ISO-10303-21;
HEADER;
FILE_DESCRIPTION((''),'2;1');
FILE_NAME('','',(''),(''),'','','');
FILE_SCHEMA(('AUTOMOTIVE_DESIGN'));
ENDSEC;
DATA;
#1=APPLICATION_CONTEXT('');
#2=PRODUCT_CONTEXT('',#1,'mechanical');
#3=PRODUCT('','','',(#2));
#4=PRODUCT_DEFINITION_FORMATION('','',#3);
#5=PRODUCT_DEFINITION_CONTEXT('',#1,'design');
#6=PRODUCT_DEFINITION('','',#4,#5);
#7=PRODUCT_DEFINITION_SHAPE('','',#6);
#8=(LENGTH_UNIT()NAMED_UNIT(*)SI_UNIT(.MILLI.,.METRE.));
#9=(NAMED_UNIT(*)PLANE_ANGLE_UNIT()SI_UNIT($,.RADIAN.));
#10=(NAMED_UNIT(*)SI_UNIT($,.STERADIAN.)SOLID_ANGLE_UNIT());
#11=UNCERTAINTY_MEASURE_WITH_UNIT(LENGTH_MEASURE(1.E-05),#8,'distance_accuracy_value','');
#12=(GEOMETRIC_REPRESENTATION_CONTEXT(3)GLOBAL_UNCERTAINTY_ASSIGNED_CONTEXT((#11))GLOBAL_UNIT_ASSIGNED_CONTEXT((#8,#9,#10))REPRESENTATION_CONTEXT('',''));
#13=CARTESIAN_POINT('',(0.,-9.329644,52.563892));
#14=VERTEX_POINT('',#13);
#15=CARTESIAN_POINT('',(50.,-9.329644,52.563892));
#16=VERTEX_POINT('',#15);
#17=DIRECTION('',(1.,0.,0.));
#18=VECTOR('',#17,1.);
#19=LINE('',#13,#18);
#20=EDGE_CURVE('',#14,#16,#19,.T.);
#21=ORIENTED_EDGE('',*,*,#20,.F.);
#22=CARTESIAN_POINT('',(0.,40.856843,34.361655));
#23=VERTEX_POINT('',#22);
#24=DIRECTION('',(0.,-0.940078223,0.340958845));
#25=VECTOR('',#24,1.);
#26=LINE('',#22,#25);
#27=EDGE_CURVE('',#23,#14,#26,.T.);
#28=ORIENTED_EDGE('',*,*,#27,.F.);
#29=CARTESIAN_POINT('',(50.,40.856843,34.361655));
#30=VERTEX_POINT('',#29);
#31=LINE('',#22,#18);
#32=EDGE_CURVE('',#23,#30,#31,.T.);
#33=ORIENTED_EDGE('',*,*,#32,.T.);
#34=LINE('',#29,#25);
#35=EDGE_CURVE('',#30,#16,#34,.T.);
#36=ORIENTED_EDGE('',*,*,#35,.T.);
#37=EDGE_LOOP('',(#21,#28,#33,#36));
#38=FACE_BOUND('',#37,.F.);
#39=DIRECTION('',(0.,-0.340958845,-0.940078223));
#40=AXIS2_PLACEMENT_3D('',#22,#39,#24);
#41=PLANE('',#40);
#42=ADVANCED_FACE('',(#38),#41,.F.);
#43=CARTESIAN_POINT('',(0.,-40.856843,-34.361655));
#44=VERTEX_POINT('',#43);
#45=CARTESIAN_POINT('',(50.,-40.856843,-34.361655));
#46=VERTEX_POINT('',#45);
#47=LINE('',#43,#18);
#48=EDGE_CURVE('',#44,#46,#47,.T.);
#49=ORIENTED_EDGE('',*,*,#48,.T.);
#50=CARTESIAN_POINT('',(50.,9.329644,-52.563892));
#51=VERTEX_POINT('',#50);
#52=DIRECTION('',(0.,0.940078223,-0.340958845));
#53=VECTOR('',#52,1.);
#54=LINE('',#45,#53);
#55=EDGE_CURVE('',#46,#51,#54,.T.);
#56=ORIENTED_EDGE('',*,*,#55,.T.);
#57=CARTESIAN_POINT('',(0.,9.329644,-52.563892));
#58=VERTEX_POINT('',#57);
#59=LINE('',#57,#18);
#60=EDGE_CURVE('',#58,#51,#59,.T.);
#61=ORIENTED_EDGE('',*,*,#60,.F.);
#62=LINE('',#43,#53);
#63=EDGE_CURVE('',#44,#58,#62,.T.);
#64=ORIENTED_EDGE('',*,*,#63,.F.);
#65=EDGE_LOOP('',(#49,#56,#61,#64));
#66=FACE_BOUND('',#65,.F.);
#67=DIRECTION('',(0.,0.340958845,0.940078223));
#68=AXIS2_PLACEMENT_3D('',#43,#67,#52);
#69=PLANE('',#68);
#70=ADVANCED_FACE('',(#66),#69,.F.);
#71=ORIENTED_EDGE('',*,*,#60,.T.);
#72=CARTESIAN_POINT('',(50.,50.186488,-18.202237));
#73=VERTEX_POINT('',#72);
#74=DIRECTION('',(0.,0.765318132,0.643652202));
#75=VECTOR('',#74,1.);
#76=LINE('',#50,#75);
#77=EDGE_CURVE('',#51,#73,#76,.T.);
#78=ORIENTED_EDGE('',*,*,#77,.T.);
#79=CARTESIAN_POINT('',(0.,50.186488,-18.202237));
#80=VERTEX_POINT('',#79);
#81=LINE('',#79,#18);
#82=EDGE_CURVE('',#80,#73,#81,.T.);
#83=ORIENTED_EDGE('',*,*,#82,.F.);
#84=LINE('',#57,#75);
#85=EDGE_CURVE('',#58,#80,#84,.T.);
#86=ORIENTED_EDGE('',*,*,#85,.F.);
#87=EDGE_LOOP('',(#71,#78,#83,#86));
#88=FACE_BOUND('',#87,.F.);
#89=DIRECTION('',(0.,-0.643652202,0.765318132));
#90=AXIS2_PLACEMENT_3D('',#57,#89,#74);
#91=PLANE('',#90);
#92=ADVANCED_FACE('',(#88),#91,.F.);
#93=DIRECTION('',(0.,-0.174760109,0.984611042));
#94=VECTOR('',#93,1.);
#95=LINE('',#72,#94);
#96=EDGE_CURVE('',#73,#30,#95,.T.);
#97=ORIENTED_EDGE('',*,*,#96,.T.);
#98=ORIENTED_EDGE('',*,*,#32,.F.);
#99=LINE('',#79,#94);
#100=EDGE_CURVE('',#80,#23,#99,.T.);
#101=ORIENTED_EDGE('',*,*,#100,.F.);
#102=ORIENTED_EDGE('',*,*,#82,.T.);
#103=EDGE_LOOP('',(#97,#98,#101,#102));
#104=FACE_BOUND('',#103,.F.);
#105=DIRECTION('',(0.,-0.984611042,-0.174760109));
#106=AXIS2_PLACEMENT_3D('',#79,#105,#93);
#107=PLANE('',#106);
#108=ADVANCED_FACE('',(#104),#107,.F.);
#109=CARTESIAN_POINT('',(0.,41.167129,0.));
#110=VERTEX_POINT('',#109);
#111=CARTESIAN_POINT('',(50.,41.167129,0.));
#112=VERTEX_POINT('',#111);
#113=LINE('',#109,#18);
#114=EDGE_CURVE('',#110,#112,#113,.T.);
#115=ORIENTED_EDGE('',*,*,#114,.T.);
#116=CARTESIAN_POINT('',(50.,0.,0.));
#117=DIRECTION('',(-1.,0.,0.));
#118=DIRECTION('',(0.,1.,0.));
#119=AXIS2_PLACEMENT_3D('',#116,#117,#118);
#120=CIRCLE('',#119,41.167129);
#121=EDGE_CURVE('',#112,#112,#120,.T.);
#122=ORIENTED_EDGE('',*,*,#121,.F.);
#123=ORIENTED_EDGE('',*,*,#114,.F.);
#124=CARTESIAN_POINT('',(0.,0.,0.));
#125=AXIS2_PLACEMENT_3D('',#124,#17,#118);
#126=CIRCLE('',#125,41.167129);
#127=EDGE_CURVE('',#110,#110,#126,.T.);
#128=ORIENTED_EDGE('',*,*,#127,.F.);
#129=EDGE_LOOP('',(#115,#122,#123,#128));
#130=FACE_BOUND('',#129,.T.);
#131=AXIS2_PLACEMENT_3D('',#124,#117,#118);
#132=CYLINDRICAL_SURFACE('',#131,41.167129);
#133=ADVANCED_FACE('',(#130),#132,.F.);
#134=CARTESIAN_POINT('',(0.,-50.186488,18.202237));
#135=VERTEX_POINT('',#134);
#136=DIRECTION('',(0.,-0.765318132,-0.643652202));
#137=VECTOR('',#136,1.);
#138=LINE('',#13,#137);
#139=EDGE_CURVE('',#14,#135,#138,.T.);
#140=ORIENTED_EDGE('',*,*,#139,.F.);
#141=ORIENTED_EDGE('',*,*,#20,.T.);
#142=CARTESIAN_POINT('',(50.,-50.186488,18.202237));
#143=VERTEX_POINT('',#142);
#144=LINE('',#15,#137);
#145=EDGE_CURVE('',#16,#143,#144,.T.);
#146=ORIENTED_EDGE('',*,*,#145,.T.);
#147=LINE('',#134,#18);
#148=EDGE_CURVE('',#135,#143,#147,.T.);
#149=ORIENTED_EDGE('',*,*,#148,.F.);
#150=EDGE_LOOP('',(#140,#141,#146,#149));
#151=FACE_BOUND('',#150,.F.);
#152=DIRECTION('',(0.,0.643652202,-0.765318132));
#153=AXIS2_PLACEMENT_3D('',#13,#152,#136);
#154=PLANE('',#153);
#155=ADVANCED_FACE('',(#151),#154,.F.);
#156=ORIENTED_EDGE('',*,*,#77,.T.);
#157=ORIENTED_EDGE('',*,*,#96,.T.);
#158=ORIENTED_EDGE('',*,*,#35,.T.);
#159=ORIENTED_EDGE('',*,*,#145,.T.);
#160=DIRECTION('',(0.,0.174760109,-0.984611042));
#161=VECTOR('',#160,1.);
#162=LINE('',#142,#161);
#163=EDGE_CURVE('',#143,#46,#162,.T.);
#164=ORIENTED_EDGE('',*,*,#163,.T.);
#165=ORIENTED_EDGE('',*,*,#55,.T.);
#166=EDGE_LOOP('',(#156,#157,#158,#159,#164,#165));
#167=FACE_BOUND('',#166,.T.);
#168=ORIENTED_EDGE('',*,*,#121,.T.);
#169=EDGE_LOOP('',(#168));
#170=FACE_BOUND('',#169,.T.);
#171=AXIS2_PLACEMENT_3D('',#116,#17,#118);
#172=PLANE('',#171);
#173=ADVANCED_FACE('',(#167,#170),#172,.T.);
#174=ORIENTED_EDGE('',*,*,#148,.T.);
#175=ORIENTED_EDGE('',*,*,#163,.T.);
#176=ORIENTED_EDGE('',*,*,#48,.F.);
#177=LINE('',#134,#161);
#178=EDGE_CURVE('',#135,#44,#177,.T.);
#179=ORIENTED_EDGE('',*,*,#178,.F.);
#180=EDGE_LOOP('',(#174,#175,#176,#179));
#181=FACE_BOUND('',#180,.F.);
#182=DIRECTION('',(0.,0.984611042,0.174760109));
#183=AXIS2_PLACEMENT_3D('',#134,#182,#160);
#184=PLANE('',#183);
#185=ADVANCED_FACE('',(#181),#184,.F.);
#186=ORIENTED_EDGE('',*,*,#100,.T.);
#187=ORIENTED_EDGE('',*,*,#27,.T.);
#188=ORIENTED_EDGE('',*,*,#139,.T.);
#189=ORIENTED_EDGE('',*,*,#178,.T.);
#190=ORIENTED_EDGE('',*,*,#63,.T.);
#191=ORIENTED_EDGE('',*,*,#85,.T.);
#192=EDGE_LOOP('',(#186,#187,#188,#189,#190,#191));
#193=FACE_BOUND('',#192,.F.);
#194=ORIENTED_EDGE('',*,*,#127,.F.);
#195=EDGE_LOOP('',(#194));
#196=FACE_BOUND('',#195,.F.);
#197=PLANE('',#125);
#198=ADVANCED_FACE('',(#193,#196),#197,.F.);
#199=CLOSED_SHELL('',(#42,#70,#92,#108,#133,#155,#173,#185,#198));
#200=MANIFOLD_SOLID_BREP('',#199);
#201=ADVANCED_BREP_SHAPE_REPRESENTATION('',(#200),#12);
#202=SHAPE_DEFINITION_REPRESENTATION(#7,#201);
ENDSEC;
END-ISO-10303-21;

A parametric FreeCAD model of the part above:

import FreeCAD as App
import Part
import Sketcher
from FreeCAD import Vector
Q = App.Units.Quantity


def add_polygon(sketch, points):
    """Adds a closed chain of lines whose ends are joined by coincident constraints."""
    first, n = sketch.GeometryCount, len(points)
    for a, b in zip(points, points[1:] + points[:1]):
        sketch.addGeometry(Part.LineSegment(App.Vector(*a, 0), App.Vector(*b, 0)), False)
    for i in range(n):
        sketch.addConstraint(Sketcher.Constraint("Coincident", first + i, 2, first + (i + 1) % n, 1))

doc = App.newDocument("Part")
body = doc.addObject("PartDesign::Body", "Body")

# Sketch on YZ plane
sketch1 = body.newObject("Sketcher::SketchObject", "Sketch")
sketch1.AttachmentSupport = (doc.getObject("YZ_Plane"), [""])
sketch1.MapMode = "FlatFace"
add_polygon(sketch1, [(-9, 53), (-50, 18), (-41, -34), (9, -53), (50, -18), (41, 34)])  # lines 0-5
sketch1.addConstraint([
    Sketcher.Constraint("Symmetric", 0, 2, 3, 2, -1, 1),
    Sketcher.Constraint("Symmetric", 1, 2, 4, 2, -1, 1),
    Sketcher.Constraint("Symmetric", 2, 2, 5, 2, -1, 1),
    Sketcher.Constraint("Equal", 0, 1),
    Sketcher.Constraint("Equal", 1, 2),
    Sketcher.Constraint("DistanceX", 2, 2, 4, 2, Q("31.527199 mm")),
    Sketcher.Constraint("Distance", 0, Q("53.385438 mm")),
    Sketcher.Constraint("DistanceY", 1, 2, 0, 2, Q("52.563892 mm")),
    Sketcher.Constraint("DistanceY", 2, 2, 0, 2, Q("70.766129 mm")),
])
pad1 = body.newObject("PartDesign::Pad", "Pad")
pad1.Profile = sketch1
pad1.Length = 50

# Sketch on YZ plane
sketch2 = body.newObject("Sketcher::SketchObject", "Sketch001")
sketch2.AttachmentSupport = (doc.getObject("YZ_Plane"), [""])
sketch2.MapMode = "FlatFace"
sketch2.addGeometry(Part.Circle(Vector(0, 0, 0), Vector(0, 0, 1), 41), False)
sketch2.addConstraint([
    Sketcher.Constraint("Coincident", 0, 3, -1, 1),
    Sketcher.Constraint("Diameter", 0, Q("82.334258 mm")),
])
pocket1 = body.newObject("PartDesign::Pocket", "Pocket")
pocket1.Profile = sketch2
pocket1.Type = "ThroughAll"
pocket1.Reversed = True

doc.recompute()
